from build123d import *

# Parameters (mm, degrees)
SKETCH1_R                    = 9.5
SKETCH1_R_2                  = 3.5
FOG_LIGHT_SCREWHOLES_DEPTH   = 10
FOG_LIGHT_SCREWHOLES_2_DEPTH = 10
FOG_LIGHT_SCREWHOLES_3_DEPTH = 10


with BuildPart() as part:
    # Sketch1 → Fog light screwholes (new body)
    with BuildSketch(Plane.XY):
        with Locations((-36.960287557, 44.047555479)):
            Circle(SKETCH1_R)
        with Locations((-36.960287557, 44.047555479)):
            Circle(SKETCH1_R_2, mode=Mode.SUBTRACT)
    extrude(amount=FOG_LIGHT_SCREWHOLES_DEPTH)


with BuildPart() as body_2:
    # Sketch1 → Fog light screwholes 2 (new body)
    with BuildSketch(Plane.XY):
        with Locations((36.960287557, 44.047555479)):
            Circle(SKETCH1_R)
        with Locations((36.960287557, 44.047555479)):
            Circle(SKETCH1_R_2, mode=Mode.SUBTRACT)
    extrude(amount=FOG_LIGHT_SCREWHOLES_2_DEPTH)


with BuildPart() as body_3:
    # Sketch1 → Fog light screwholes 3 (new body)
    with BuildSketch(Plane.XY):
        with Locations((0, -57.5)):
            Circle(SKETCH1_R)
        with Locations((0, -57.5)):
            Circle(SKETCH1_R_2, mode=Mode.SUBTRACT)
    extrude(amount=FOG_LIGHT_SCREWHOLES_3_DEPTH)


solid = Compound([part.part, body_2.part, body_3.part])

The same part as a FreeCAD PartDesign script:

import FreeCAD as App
import Part
import Sketcher
from FreeCAD import Vector

doc = App.newDocument("Part")
body = doc.addObject("PartDesign::Body", "Body")

sketch1 = body.newObject("Sketcher::SketchObject", "Sketch")
sketch1.AttachmentSupport = (doc.getObject("XY_Plane"), [""])
sketch1.MapMode = "FlatFace"
sketch1.addGeometry(Part.Circle(Vector(-36.960288, 44.047555, 0), Vector(0, 0, 1), 9.5), False)
sketch1.addGeometry(Part.Circle(Vector(-36.960288, 44.047555, 0), Vector(0, 0, 1), 3.5), False)
sketch1.addConstraint(Sketcher.Constraint("Coincident", 1, 3, 0, 3))
sketch1.addConstraint(Sketcher.Constraint("Diameter", 0, 19.0))
sketch1.addConstraint(Sketcher.Constraint("Diameter", 1, 7.0))
sketch1.addConstraint(Sketcher.Constraint("DistanceX", 0, 3, -1, 1, 36.960288))
sketch1.addConstraint(Sketcher.Constraint("DistanceY", -1, 1, 0, 3, 44.047555))
pad1 = body.newObject("PartDesign::Pad", "Pad")
pad1.Profile = sketch1
pad1.Length = 10
body2 = doc.addObject("PartDesign::Body", "Body001")

sketch2 = body2.newObject("Sketcher::SketchObject", "Sketch001")
sketch2.AttachmentSupport = (doc.getObject("XY_Plane001"), [""])
sketch2.MapMode = "FlatFace"
sketch2.addGeometry(Part.Circle(Vector(36.960288, 44.047555, 0), Vector(0, 0, 1), 9.5), False)
sketch2.addGeometry(Part.Circle(Vector(36.960288, 44.047555, 0), Vector(0, 0, 1), 3.5), False)
sketch2.addConstraint(Sketcher.Constraint("Coincident", 1, 3, 0, 3))
sketch2.addConstraint(Sketcher.Constraint("Diameter", 0, 19.0))
sketch2.addConstraint(Sketcher.Constraint("Diameter", 1, 7.0))
sketch2.addConstraint(Sketcher.Constraint("DistanceX", -1, 1, 0, 3, 36.960288))
sketch2.addConstraint(Sketcher.Constraint("DistanceY", -1, 1, 0, 3, 44.047555))
pad2 = body2.newObject("PartDesign::Pad", "Pad001")
pad2.Profile = sketch2
pad2.Length = 10
body3 = doc.addObject("PartDesign::Body", "Body002")

sketch3 = body3.newObject("Sketcher::SketchObject", "Sketch002")
sketch3.AttachmentSupport = (doc.getObject("XY_Plane002"), [""])
sketch3.MapMode = "FlatFace"
sketch3.addGeometry(Part.Circle(Vector(0, -57.5, 0), Vector(0, 0, 1), 9.5), False)
sketch3.addGeometry(Part.Circle(Vector(0, -57.5, 0), Vector(0, 0, 1), 3.5), False)
sketch3.addConstraint(Sketcher.Constraint("Coincident", 1, 3, 0, 3))
sketch3.addConstraint(Sketcher.Constraint("PointOnObject", 0, 3, -2))
sketch3.addConstraint(Sketcher.Constraint("Diameter", 0, 19.0))
sketch3.addConstraint(Sketcher.Constraint("Diameter", 1, 7.0))
sketch3.addConstraint(Sketcher.Constraint("DistanceY", 0, 3, -1, 1, 57.5))
pad3 = body3.newObject("PartDesign::Pad", "Pad002")
pad3.Profile = sketch3
pad3.Length = 10

doc.recompute()
